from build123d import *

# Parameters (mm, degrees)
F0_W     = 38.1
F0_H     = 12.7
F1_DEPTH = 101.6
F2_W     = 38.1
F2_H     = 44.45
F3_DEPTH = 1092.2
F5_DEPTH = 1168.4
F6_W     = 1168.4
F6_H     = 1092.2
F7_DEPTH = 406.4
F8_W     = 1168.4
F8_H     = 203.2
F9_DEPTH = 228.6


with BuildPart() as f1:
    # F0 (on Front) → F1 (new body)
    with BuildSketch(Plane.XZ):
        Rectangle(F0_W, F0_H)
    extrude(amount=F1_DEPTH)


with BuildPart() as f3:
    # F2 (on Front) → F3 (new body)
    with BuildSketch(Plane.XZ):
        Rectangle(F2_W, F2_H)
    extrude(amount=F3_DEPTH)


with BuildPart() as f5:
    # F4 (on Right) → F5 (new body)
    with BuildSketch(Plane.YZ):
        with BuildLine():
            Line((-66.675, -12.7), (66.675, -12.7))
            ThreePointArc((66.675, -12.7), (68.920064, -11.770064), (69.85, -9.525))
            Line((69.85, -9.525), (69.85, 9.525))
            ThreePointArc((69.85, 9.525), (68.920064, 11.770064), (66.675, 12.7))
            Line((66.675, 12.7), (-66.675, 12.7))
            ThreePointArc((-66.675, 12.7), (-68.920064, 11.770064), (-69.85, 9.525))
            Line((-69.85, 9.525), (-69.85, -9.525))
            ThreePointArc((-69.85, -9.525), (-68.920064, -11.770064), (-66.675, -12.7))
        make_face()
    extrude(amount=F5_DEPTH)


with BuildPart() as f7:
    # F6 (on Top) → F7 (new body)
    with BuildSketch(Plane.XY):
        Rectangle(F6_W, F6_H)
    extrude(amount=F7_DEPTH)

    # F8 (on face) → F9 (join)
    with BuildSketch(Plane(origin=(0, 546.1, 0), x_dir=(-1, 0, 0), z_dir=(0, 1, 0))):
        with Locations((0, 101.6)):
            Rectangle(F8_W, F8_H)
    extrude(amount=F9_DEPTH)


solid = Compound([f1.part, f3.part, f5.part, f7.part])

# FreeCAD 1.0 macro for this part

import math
import FreeCAD as App
import Part
import Sketcher
Q = App.Units.Quantity

doc = App.newDocument("Part")
body = doc.addObject("PartDesign::Body", "Body")

# Sketch on XZ plane
sketch1 = body.newObject("Sketcher::SketchObject", "Sketch")
sketch1.AttachmentSupport = (doc.getObject("XZ_Plane"), [""])
sketch1.MapMode = "FlatFace"
sketch1.addGeometry([
    Part.LineSegment(App.Vector(-19, 6, 0), App.Vector(-19, -6, 0)),
    Part.LineSegment(App.Vector(-19, -6, 0), App.Vector(19, -6, 0)),
    Part.LineSegment(App.Vector(19, -6, 0), App.Vector(19, 6, 0)),
    Part.LineSegment(App.Vector(19, 6, 0), App.Vector(-19, 6, 0)),
], False)
sketch1.addConstraint([
    Sketcher.Constraint("Coincident", 0, 2, 1, 1),
    Sketcher.Constraint("Coincident", 1, 2, 2, 1),
    Sketcher.Constraint("Coincident", 2, 2, 3, 1),
    Sketcher.Constraint("Coincident", 3, 2, 0, 1),
    Sketcher.Constraint("Vertical", 0),
    Sketcher.Constraint("Horizontal", 1),
    Sketcher.Constraint("Vertical", 2),
    Sketcher.Constraint("Horizontal", 3),
    Sketcher.Constraint("Symmetric", 0, 2, 2, 2, -1, 1),
    Sketcher.Constraint("DistanceX", 1, 1, 1, 2, Q("1.5 in")),
    Sketcher.Constraint("DistanceY", 0, 2, 0, 1, Q("0.5 in")),
])
pad1 = body.newObject("PartDesign::Pad", "Pad")
pad1.Profile = sketch1
pad1.Length = Q("4 in")
body2 = doc.addObject("PartDesign::Body", "Body001")

# Sketch on XZ plane
sketch2 = body2.newObject("Sketcher::SketchObject", "Sketch001")
sketch2.AttachmentSupport = (doc.getObject("XZ_Plane001"), [""])
sketch2.MapMode = "FlatFace"
sketch2.addGeometry([
    Part.LineSegment(App.Vector(-19, 22, 0), App.Vector(-19, -22, 0)),
    Part.LineSegment(App.Vector(-19, -22, 0), App.Vector(19, -22, 0)),
    Part.LineSegment(App.Vector(19, -22, 0), App.Vector(19, 22, 0)),
    Part.LineSegment(App.Vector(19, 22, 0), App.Vector(-19, 22, 0)),
], False)
sketch2.addConstraint([
    Sketcher.Constraint("Coincident", 0, 2, 1, 1),
    Sketcher.Constraint("Coincident", 1, 2, 2, 1),
    Sketcher.Constraint("Coincident", 2, 2, 3, 1),
    Sketcher.Constraint("Coincident", 3, 2, 0, 1),
    Sketcher.Constraint("Vertical", 0),
    Sketcher.Constraint("Horizontal", 1),
    Sketcher.Constraint("Vertical", 2),
    Sketcher.Constraint("Horizontal", 3),
    Sketcher.Constraint("Symmetric", 0, 2, 2, 2, -1, 1),
    Sketcher.Constraint("DistanceX", 1, 1, 1, 2, Q("1.5 in")),
    Sketcher.Constraint("DistanceY", 0, 2, 0, 1, Q("1.75 in")),
])
pad2 = body2.newObject("PartDesign::Pad", "Pad001")
pad2.Profile = sketch2
pad2.Length = Q("43 in")
body3 = doc.addObject("PartDesign::Body", "Body002")

# Sketch on YZ plane
sketch3 = body3.newObject("Sketcher::SketchObject", "Sketch002")
sketch3.AttachmentSupport = (doc.getObject("YZ_Plane002"), [""])
sketch3.MapMode = "FlatFace"
sketch3.addGeometry([
    Part.LineSegment(App.Vector(-66.7, -12.7, 0), App.Vector(66.7, -12.7, 0)),  # 0
    Part.ArcOfCircle(Part.Circle(App.Vector(66.7, -9.5, 0), App.Vector(0, 0, 1), 3.2), math.radians(-90), math.radians(0)),  # 1
    Part.LineSegment(App.Vector(69.8, -9.5, 0), App.Vector(69.8, 9.5, 0)),  # 2
    Part.ArcOfCircle(Part.Circle(App.Vector(66.7, 9.5, 0), App.Vector(0, 0, 1), 3.2), math.radians(0), math.radians(90)),  # 3
    Part.LineSegment(App.Vector(66.7, 12.7, 0), App.Vector(-66.7, 12.7, 0)),  # 4
    Part.ArcOfCircle(Part.Circle(App.Vector(-66.7, 9.5, 0), App.Vector(0, 0, 1), 3.2), math.radians(90), math.radians(180)),  # 5
    Part.LineSegment(App.Vector(-69.8, 9.5, 0), App.Vector(-69.8, -9.5, 0)),  # 6
    Part.ArcOfCircle(Part.Circle(App.Vector(-66.7, -9.5, 0), App.Vector(0, 0, 1), 3.2), math.radians(-180), math.radians(-90)),  # 7
], False)
sketch3.addConstraint([
    Sketcher.Constraint("Tangent", 0, 2, 1, 1),
    Sketcher.Constraint("Tangent", 1, 2, 2, 1),
    Sketcher.Constraint("Tangent", 2, 2, 3, 1),
    Sketcher.Constraint("Tangent", 3, 2, 4, 1),
    Sketcher.Constraint("Tangent", 4, 2, 5, 1),
    Sketcher.Constraint("Tangent", 5, 2, 6, 1),
    Sketcher.Constraint("Tangent", 6, 2, 7, 1),
    Sketcher.Constraint("Tangent", 7, 2, 0, 1),
    Sketcher.Constraint("Horizontal", 0),
    Sketcher.Constraint("Vertical", 2),
    Sketcher.Constraint("Horizontal", 4),
    Sketcher.Constraint("Vertical", 6),
    Sketcher.Constraint("Equal", 1, 3),
    Sketcher.Constraint("Equal", 3, 5),
    Sketcher.Constraint("Equal", 5, 7),
    Sketcher.Constraint("Symmetric", 1, 3, 5, 3, -1, 1),
    Sketcher.Constraint("Radius", 1, Q("0.125 in")),
    Sketcher.Constraint("DistanceY", 0, 2, 3, 2, Q("1 in")),
    Sketcher.Constraint("DistanceX", 0, 1, 0, 2, Q("5.25 in")),
])
pad3 = body3.newObject("PartDesign::Pad", "Pad002")
pad3.Profile = sketch3
pad3.Length = Q("46 in")
body4 = doc.addObject("PartDesign::Body", "Body003")

# Sketch on XY plane
sketch4 = body4.newObject("Sketcher::SketchObject", "Sketch003")
sketch4.AttachmentSupport = (doc.getObject("XY_Plane003"), [""])
sketch4.MapMode = "FlatFace"
sketch4.addGeometry([
    Part.LineSegment(App.Vector(-584, 546, 0), App.Vector(-584, -546, 0)),
    Part.LineSegment(App.Vector(-584, -546, 0), App.Vector(584, -546, 0)),
    Part.LineSegment(App.Vector(584, -546, 0), App.Vector(584, 546, 0)),
    Part.LineSegment(App.Vector(584, 546, 0), App.Vector(-584, 546, 0)),
], False)
sketch4.addConstraint([
    Sketcher.Constraint("Coincident", 0, 2, 1, 1),
    Sketcher.Constraint("Coincident", 1, 2, 2, 1),
    Sketcher.Constraint("Coincident", 2, 2, 3, 1),
    Sketcher.Constraint("Coincident", 3, 2, 0, 1),
    Sketcher.Constraint("Vertical", 0),
    Sketcher.Constraint("Horizontal", 1),
    Sketcher.Constraint("Vertical", 2),
    Sketcher.Constraint("Horizontal", 3),
    Sketcher.Constraint("Symmetric", 0, 2, 2, 2, -1, 1),
    Sketcher.Constraint("DistanceX", 1, 1, 1, 2, Q("46 in")),
    Sketcher.Constraint("DistanceY", 0, 2, 0, 1, Q("43 in")),
])
pad4 = body4.newObject("PartDesign::Pad", "Pad003")
pad4.Profile = sketch4
pad4.Length = Q("16 in")

# Sketch on XZ plane
sketch5 = body4.newObject("Sketcher::SketchObject", "Sketch004")
sketch5.AttachmentSupport = (doc.getObject("XZ_Plane003"), [""])
sketch5.MapMode = "FlatFace"
sketch5.AttachmentOffset = App.Placement(App.Vector(0, 0, -21.5 * 25.4), App.Rotation())
sketch5.addGeometry([
    Part.LineSegment(App.Vector(584, 203, 0), App.Vector(584, 0, 0)),
    Part.LineSegment(App.Vector(584, 0, 0), App.Vector(-584, 0, 0)),
    Part.LineSegment(App.Vector(-584, 0, 0), App.Vector(-584, 203, 0)),
    Part.LineSegment(App.Vector(-584, 203, 0), App.Vector(584, 203, 0)),
], False)
sketch5.addConstraint([
    Sketcher.Constraint("Coincident", 0, 2, 1, 1),
    Sketcher.Constraint("Coincident", 1, 2, 2, 1),
    Sketcher.Constraint("Coincident", 2, 2, 3, 1),
    Sketcher.Constraint("Coincident", 3, 2, 0, 1),
    Sketcher.Constraint("Vertical", 0),
    Sketcher.Constraint("Horizontal", 1),
    Sketcher.Constraint("Vertical", 2),
    Sketcher.Constraint("Horizontal", 3),
    Sketcher.Constraint("Symmetric", 0, 2, 1, 2, -1, 1),
    Sketcher.Constraint("DistanceX", 1, 2, 1, 1, Q("46 in")),
    Sketcher.Constraint("DistanceY", 0, 2, 0, 1, Q("8 in")),
])
pad5 = body4.newObject("PartDesign::Pad", "Pad004")
pad5.Profile = sketch5
pad5.Length = Q("9 in")
pad5.Reversed = True

doc.recompute()
